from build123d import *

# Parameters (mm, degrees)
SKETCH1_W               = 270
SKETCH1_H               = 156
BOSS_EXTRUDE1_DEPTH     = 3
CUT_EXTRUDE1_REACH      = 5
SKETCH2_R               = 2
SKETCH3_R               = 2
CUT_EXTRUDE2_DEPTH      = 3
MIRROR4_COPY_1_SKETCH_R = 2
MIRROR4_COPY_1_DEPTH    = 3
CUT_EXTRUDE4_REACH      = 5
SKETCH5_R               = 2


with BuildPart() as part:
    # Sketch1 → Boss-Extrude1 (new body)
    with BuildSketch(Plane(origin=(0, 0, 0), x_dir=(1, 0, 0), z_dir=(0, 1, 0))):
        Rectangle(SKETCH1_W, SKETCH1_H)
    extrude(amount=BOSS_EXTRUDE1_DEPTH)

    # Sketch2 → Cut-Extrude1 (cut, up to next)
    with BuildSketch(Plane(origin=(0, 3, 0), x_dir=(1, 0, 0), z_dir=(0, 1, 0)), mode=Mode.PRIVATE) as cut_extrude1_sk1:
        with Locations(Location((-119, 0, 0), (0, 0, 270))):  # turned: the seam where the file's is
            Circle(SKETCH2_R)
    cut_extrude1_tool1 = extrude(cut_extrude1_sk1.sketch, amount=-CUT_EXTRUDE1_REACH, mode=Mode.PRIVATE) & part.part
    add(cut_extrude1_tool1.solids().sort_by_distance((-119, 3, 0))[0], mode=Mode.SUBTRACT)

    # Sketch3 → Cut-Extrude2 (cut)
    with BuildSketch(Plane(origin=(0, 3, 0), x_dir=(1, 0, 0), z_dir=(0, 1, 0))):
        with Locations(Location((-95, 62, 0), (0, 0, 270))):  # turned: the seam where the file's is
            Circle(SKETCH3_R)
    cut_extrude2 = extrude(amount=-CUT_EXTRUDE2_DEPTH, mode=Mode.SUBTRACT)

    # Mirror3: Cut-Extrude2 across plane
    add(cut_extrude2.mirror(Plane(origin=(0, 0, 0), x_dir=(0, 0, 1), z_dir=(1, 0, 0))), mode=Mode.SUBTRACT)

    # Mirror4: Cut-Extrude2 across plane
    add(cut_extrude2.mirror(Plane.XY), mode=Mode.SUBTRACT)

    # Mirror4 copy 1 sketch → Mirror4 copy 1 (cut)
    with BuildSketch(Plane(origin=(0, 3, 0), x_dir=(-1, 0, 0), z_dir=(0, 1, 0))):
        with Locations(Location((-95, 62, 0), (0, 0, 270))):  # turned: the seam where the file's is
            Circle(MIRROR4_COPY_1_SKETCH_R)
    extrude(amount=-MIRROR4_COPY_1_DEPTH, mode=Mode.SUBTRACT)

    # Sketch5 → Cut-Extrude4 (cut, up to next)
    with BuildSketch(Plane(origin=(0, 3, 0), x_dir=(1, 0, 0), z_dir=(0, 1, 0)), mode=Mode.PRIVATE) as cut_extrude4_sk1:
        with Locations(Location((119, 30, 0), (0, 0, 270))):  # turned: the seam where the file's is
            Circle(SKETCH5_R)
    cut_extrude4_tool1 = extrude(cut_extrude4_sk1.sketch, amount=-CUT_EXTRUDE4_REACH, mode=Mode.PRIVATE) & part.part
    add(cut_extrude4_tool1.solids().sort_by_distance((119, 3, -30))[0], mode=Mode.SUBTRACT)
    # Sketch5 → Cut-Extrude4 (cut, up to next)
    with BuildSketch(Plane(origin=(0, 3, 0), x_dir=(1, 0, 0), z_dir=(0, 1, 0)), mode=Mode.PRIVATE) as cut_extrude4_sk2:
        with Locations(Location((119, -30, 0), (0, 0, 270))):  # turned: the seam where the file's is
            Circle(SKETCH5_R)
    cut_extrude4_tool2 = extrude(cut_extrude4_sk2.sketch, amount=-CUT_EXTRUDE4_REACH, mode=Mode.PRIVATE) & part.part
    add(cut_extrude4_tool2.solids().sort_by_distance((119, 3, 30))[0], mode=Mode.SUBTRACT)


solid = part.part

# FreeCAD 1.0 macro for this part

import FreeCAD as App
import Part
import Sketcher

V = App.Vector
Q = App.Units.Quantity

doc = App.newDocument("Part")
body = doc.addObject("PartDesign::Body", "Body")

# Sketch on XZ plane
sketch1 = body.newObject("Sketcher::SketchObject", "Sketch")
sketch1.AttachmentSupport = (doc.getObject("XZ_Plane"), [""])
sketch1.MapMode = "FlatFace"
sketch1.addGeometry([
    Part.LineSegment(V(-135, -78, 0), V(-135, 78, 0)),
    Part.LineSegment(V(-135, 78, 0), V(135, 78, 0)),
    Part.LineSegment(V(135, 78, 0), V(135, -78, 0)),
    Part.LineSegment(V(135, -78, 0), V(-135, -78, 0)),
], False)
sketch1.addConstraint([
    Sketcher.Constraint("Coincident", 0, 2, 1, 1),
    Sketcher.Constraint("Coincident", 1, 2, 2, 1),
    Sketcher.Constraint("Coincident", 2, 2, 3, 1),
    Sketcher.Constraint("Coincident", 3, 2, 0, 1),
    Sketcher.Constraint("Vertical", 0),
    Sketcher.Constraint("Horizontal", 1),
    Sketcher.Constraint("Vertical", 2),
    Sketcher.Constraint("Horizontal", 3),
    Sketcher.Constraint("Symmetric", 0, 2, 2, 2, -1, 1),
    Sketcher.Constraint("DistanceX", 1, 1, 1, 2, Q("270 mm")),
    Sketcher.Constraint("DistanceY", 0, 1, 0, 2, Q("156 mm")),
])
pad1 = body.newObject("PartDesign::Pad", "Pad")
pad1.Profile = sketch1
pad1.Length = 3
pad1.Reversed = True

# Sketch on XZ plane
sketch2 = body.newObject("Sketcher::SketchObject", "Sketch001")
sketch2.AttachmentSupport = (doc.getObject("XZ_Plane"), [""])
sketch2.MapMode = "FlatFace"
sketch2.AttachmentOffset = App.Placement(V(0, 0, -3), App.Rotation())
sketch2.addGeometry(Part.Circle(V(-119, 0, 0), V(0, 0, 1), 2), False)
sketch2.addConstraint([
    Sketcher.Constraint("PointOnObject", 0, 3, -1),
    Sketcher.Constraint("Diameter", 0, Q("4 mm")),
    Sketcher.Constraint("DistanceX", 0, 3, -1, 1, Q("119 mm")),
])
pocket1 = body.newObject("PartDesign::Pocket", "Pocket")
pocket1.Profile = sketch2
pocket1.Type = "UpToFirst"
pocket1.Reversed = True

# Sketch on XZ plane
sketch3 = body.newObject("Sketcher::SketchObject", "Sketch002")
sketch3.AttachmentSupport = (doc.getObject("XZ_Plane"), [""])
sketch3.MapMode = "FlatFace"
sketch3.AttachmentOffset = App.Placement(V(0, 0, -3), App.Rotation())
sketch3.addGeometry(Part.Circle(V(-95, -62, 0), V(0, 0, 1), 2), False)
sketch3.addConstraint([
    Sketcher.Constraint("Diameter", 0, Q("4 mm")),
    Sketcher.Constraint("DistanceX", 0, 3, -1, 1, Q("95 mm")),
    Sketcher.Constraint("DistanceY", 0, 3, -1, 1, Q("62 mm")),
])
pocket2 = body.newObject("PartDesign::Pocket", "Pocket001")
pocket2.Profile = sketch3
pocket2.Length = 3
pocket2.Reversed = True
doc.recompute()

mirrored = body.newObject("PartDesign::Mirrored", "Mirrored")
mirrored.Originals = [pocket2]
mirrored.MirrorPlane = (doc.getObject("YZ_Plane"), [""])
body.Tip = mirrored
doc.recompute()

mirrored2 = body.newObject("PartDesign::Mirrored", "Mirrored001")
mirrored2.Originals = [pocket2]
mirrored2.MirrorPlane = (doc.getObject("XY_Plane"), [""])
body.Tip = mirrored2

# Sketch on XZ plane
sketch4 = body.newObject("Sketcher::SketchObject", "Sketch003")
sketch4.AttachmentSupport = (doc.getObject("XZ_Plane"), [""])
sketch4.MapMode = "FlatFace"
sketch4.AttachmentOffset = App.Placement(V(0, 0, -3), App.Rotation())
sketch4.addGeometry(Part.Circle(V(95, 62, 0), V(0, 0, 1), 2), False)
sketch4.addConstraint([
    Sketcher.Constraint("Diameter", 0, Q("4 mm")),
    Sketcher.Constraint("DistanceX", -1, 1, 0, 3, Q("95 mm")),
    Sketcher.Constraint("DistanceY", -1, 1, 0, 3, Q("62 mm")),
])
pocket3 = body.newObject("PartDesign::Pocket", "Pocket002")
pocket3.Profile = sketch4
pocket3.Length = 3
pocket3.Reversed = True

# Sketch on XZ plane
sketch5 = body.newObject("Sketcher::SketchObject", "Sketch004")
sketch5.AttachmentSupport = (doc.getObject("XZ_Plane"), [""])
sketch5.MapMode = "FlatFace"
sketch5.AttachmentOffset = App.Placement(V(0, 0, -3), App.Rotation())
sketch5.addGeometry(Part.Circle(V(119, -30, 0), V(0, 0, 1), 2), False)
sketch5.addConstraint([
    Sketcher.Constraint("Diameter", 0, Q("4 mm")),
    Sketcher.Constraint("DistanceX", -1, 1, 0, 3, Q("119 mm")),
    Sketcher.Constraint("DistanceY", 0, 3, -1, 1, Q("30 mm")),
])
pocket4 = body.newObject("PartDesign::Pocket", "Pocket003")
pocket4.Profile = sketch5
pocket4.Type = "UpToFirst"
pocket4.Reversed = True

# Sketch on XZ plane
sketch6 = body.newObject("Sketcher::SketchObject", "Sketch005")
sketch6.AttachmentSupport = (doc.getObject("XZ_Plane"), [""])
sketch6.MapMode = "FlatFace"
sketch6.AttachmentOffset = App.Placement(V(0, 0, -3), App.Rotation())
sketch6.addGeometry(Part.Circle(V(119, 30, 0), V(0, 0, 1), 2), False)
sketch6.addConstraint([
    Sketcher.Constraint("Diameter", 0, Q("4 mm")),
    Sketcher.Constraint("DistanceX", -1, 1, 0, 3, Q("119 mm")),
    Sketcher.Constraint("DistanceY", -1, 1, 0, 3, Q("30 mm")),
])
pocket5 = body.newObject("PartDesign::Pocket", "Pocket004")
pocket5.Profile = sketch6
pocket5.Type = "UpToFirst"
pocket5.Reversed = True

doc.recompute()
